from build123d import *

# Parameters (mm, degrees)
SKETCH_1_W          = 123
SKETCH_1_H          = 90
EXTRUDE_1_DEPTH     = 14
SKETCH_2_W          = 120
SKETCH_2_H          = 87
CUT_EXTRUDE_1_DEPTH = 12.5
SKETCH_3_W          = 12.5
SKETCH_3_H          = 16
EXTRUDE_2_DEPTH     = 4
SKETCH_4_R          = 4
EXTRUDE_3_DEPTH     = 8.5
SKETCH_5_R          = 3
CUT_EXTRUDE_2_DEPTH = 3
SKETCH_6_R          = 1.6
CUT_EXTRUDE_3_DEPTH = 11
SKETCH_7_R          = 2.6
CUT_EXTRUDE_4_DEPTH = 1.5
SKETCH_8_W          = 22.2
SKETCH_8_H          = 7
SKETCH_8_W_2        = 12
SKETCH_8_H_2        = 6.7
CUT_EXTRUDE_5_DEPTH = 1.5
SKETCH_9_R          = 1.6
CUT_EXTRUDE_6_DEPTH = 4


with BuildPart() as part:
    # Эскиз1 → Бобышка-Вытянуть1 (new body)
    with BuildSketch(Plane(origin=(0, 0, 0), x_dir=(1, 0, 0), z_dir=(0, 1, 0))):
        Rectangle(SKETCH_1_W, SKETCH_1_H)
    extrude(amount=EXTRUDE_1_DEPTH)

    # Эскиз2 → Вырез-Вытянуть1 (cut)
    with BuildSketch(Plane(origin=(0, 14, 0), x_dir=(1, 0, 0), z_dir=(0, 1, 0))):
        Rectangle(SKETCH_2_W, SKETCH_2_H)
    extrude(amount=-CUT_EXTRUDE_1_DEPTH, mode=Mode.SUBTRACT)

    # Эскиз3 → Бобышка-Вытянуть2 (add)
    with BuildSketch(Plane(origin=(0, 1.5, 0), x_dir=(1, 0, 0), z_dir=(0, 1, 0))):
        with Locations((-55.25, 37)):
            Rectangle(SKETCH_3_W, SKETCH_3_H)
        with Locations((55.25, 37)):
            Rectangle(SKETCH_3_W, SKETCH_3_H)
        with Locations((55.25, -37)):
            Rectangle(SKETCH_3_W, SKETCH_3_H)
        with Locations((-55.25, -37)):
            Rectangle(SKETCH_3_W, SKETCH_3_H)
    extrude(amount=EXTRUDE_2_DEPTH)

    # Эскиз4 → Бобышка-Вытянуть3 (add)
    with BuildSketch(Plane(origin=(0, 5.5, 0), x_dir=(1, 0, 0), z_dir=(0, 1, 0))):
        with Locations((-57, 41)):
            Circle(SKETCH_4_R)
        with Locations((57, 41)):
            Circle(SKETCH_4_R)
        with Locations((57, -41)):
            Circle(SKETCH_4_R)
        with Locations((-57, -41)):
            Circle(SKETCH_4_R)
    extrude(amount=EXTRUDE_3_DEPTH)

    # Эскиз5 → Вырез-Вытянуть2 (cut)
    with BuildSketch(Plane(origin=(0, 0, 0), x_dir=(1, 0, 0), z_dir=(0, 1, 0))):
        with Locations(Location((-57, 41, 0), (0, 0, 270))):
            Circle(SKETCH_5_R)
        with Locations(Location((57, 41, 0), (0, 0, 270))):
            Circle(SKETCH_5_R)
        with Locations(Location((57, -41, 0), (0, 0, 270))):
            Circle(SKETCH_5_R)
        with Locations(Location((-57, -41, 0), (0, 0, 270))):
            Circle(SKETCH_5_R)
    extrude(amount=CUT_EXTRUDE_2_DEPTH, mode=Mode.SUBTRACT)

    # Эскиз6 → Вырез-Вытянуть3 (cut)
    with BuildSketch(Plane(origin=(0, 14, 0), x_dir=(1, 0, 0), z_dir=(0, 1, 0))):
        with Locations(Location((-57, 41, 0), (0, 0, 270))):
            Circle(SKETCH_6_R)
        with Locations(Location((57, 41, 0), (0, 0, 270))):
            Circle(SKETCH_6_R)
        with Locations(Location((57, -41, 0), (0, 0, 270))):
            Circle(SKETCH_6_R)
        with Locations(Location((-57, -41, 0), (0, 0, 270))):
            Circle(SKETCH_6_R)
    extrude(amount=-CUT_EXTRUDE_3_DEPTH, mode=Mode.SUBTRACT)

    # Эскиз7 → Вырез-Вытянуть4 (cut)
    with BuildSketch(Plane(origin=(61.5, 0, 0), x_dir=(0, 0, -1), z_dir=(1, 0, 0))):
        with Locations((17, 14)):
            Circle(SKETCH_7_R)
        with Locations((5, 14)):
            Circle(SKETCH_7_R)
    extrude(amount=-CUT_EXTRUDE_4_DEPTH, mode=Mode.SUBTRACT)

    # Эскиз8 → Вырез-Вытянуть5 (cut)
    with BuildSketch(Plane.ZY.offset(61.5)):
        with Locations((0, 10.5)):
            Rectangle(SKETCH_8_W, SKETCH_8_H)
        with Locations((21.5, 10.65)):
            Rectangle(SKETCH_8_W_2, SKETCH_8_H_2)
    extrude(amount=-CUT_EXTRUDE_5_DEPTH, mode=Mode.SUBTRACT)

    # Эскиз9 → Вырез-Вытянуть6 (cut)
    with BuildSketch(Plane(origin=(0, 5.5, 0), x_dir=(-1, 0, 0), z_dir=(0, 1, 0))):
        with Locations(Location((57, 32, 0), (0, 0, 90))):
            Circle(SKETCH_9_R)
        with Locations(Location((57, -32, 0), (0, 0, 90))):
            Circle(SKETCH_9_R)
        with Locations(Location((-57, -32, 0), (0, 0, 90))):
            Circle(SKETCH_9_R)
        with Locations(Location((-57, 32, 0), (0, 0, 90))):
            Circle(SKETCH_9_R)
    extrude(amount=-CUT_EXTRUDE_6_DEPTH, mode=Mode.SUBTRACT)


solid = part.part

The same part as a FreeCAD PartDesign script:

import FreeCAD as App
import Part
import Sketcher


def add_polygon(sketch, points):
    """Adds a closed chain of lines whose ends are joined by coincident constraints."""
    first, n = sketch.GeometryCount, len(points)
    for a, b in zip(points, points[1:] + points[:1]):
        sketch.addGeometry(Part.LineSegment(App.Vector(*a, 0), App.Vector(*b, 0)), False)
    for i in range(n):
        sketch.addConstraint(Sketcher.Constraint("Coincident", first + i, 2, first + (i + 1) % n, 1))

doc = App.newDocument("Part")
params = doc.addObject("Spreadsheet::Sheet", "Params")
for row, (alias, value) in enumerate([
    ("sketch1_width", "123 mm"),
    ("sketch1_height", "90 mm"),
    ("pad1_length", "14 mm"),
    ("sketch2_width", "120 mm"),
    ("sketch2_height", "87 mm"),
    ("pocket1_length", "12.5 mm"),
    ("sketch3_height", "16 mm"),
    ("sketch3_width", "12.5 mm"),
    ("pad2_length", "4 mm"),
    ("sketch4_diameter", "8 mm"),
    ("pad3_length", "8.5 mm"),
    ("sketch5_diameter", "6 mm"),
    ("pocket2_length", "3 mm"),
    ("sketch6_diameter", "3.2 mm"),
    ("pocket3_length", "11 mm"),
    ("sketch7_diameter", "5.2 mm"),
    ("pocket4_length", "1.5 mm"),
    ("sketch8_width", "7 mm"),
    ("sketch8_height", "12 mm"),
    ("sketch8_width2", "6.7 mm"),
    ("sketch8_height2", "22.2 mm"),
    ("pocket5_length", "1.5 mm"),
    ("sketch9_diameter", "3.2 mm"),
    ("pocket6_length", "4 mm"),
], start=1):
    params.set(f"A{row}", alias)
    params.set(f"B{row}", "=" + value)
    params.setAlias(f"B{row}", alias)

body = doc.addObject("PartDesign::Body", "Body")

# Sketch on XZ plane
sketch1 = body.newObject("Sketcher::SketchObject", "Sketch")
sketch1.AttachmentSupport = (doc.getObject("XZ_Plane"), [""])
sketch1.MapMode = "FlatFace"
add_polygon(sketch1, [(-62, -45), (-62, 45), (62, 45), (62, -45)])  # lines 0-3
sketch1.addConstraint([
    Sketcher.Constraint("Vertical", 0),
    Sketcher.Constraint("Horizontal", 1),
    Sketcher.Constraint("Vertical", 2),
    Sketcher.Constraint("Horizontal", 3),
    Sketcher.Constraint("Symmetric", 0, 2, 2, 2, -1, 1),
    Sketcher.Constraint("DistanceX", 1, 1, 1, 2, 123.0),
    Sketcher.Constraint("DistanceY", 0, 1, 0, 2, 90.0),
])
sketch1.setExpression("Constraints[9]", "Params.sketch1_width")
sketch1.setExpression("Constraints[10]", "Params.sketch1_height")
pad1 = body.newObject("PartDesign::Pad", "Pad")
pad1.Profile = sketch1
pad1.setExpression("Length", "Params.pad1_length")
pad1.Reversed = True

# Sketch on XZ plane
sketch2 = body.newObject("Sketcher::SketchObject", "Sketch001")
sketch2.AttachmentSupport = (doc.getObject("XZ_Plane"), [""])
sketch2.MapMode = "FlatFace"
sketch2.AttachmentOffset = App.Placement(App.Vector(0, 0, -14), App.Rotation())
add_polygon(sketch2, [(-60, -44), (-60, 44), (60, 44), (60, -44)])  # lines 0-3
sketch2.addConstraint([
    Sketcher.Constraint("Vertical", 0),
    Sketcher.Constraint("Horizontal", 1),
    Sketcher.Constraint("Vertical", 2),
    Sketcher.Constraint("Horizontal", 3),
    Sketcher.Constraint("Symmetric", 0, 2, 2, 2, -1, 1),
    Sketcher.Constraint("DistanceX", 1, 1, 1, 2, 120.0),
    Sketcher.Constraint("DistanceY", 0, 1, 0, 2, 87.0),
])
sketch2.setExpression("Constraints[9]", "Params.sketch2_width")
sketch2.setExpression("Constraints[10]", "Params.sketch2_height")
pocket1 = body.newObject("PartDesign::Pocket", "Pocket")
pocket1.Profile = sketch2
pocket1.setExpression("Length", "Params.pocket1_length")
pocket1.Reversed = True

# Sketch on XZ plane
sketch3 = body.newObject("Sketcher::SketchObject", "Sketch002")
sketch3.AttachmentSupport = (doc.getObject("XZ_Plane"), [""])
sketch3.MapMode = "FlatFace"
sketch3.AttachmentOffset = App.Placement(App.Vector(0, 0, -1.5), App.Rotation())
add_polygon(sketch3, [(-62, -45), (-62, -29), (-49, -29), (-49, -45)])  # lines 0-3
add_polygon(sketch3, [(49, -45), (49, -29), (62, -29), (62, -45)])  # lines 4-7
add_polygon(sketch3, [(49, 29), (49, 45), (62, 45), (62, 29)])  # lines 8-11
add_polygon(sketch3, [(-62, 29), (-62, 45), (-49, 45), (-49, 29)])  # lines 12-15
sketch3.addConstraint([
    Sketcher.Constraint("Vertical", 0),
    Sketcher.Constraint("Horizontal", 1),
    Sketcher.Constraint("Vertical", 2),
    Sketcher.Constraint("Horizontal", 3),
    Sketcher.Constraint("Vertical", 4),
    Sketcher.Constraint("Horizontal", 5),
    Sketcher.Constraint("Vertical", 6),
    Sketcher.Constraint("Horizontal", 7),
    Sketcher.Constraint("Vertical", 8),
    Sketcher.Constraint("Horizontal", 9),
    Sketcher.Constraint("Vertical", 10),
    Sketcher.Constraint("Horizontal", 11),
    Sketcher.Constraint("Vertical", 12),
    Sketcher.Constraint("Horizontal", 13),
    Sketcher.Constraint("Vertical", 14),
    Sketcher.Constraint("Horizontal", 15),
    Sketcher.Constraint("Symmetric", 2, 2, 8, 2, -1, 1),
    Sketcher.Constraint("Symmetric", 0, 2, 10, 2, -1, 1),
    Sketcher.Constraint("Symmetric", 6, 2, 12, 2, -1, 1),
    Sketcher.Constraint("Symmetric", 4, 2, 14, 2, -1, 1),
    Sketcher.Constraint("Symmetric", 1, 2, 4, 2, -2),
    Sketcher.Constraint("Symmetric", 3, 2, 6, 2, -2),
    Sketcher.Constraint("DistanceY", 0, 1, 0, 2, 16.0),
    Sketcher.Constraint("DistanceX", 1, 1, 1, 2, 12.5),
    Sketcher.Constraint("DistanceY", 0, 2, -1, 1, 29.0),
    Sketcher.Constraint("DistanceX", 1, 2, -1, 1, 49.0),
])
sketch3.setExpression("Constraints[38]", "Params.sketch3_height")
sketch3.setExpression("Constraints[39]", "Params.sketch3_width")
pad2 = body.newObject("PartDesign::Pad", "Pad001")
pad2.Profile = sketch3
pad2.setExpression("Length", "Params.pad2_length")
pad2.Reversed = True

# Sketch on XZ plane
sketch4 = body.newObject("Sketcher::SketchObject", "Sketch003")
sketch4.AttachmentSupport = (doc.getObject("XZ_Plane"), [""])
sketch4.MapMode = "FlatFace"
sketch4.AttachmentOffset = App.Placement(App.Vector(0, 0, -5.5), App.Rotation())
sketch4.addGeometry([
    Part.Circle(App.Vector(-57, -41, 0), App.Vector(0, 0, 1), 4),
    Part.Circle(App.Vector(57, -41, 0), App.Vector(0, 0, 1), 4),
    Part.Circle(App.Vector(57, 41, 0), App.Vector(0, 0, 1), 4),
    Part.Circle(App.Vector(-57, 41, 0), App.Vector(0, 0, 1), 4),
], False)
sketch4.addConstraint([
    Sketcher.Constraint("Equal", 0, 1),
    Sketcher.Constraint("Equal", 1, 2),
    Sketcher.Constraint("Equal", 2, 3),
    Sketcher.Constraint("Symmetric", 0, 3, 2, 3, -1, 1),
    Sketcher.Constraint("Symmetric", 1, 3, 3, 3, -1, 1),
    Sketcher.Constraint("Symmetric", 0, 3, 1, 3, -2),
    Sketcher.Constraint("Diameter", 0, 8.0),
    Sketcher.Constraint("DistanceX", 0, 3, -1, 1, 57.0),
    Sketcher.Constraint("DistanceY", 0, 3, -1, 1, 41.0),
])
sketch4.setExpression("Constraints[6]", "Params.sketch4_diameter")
pad3 = body.newObject("PartDesign::Pad", "Pad002")
pad3.Profile = sketch4
pad3.setExpression("Length", "Params.pad3_length")
pad3.Reversed = True

# Sketch on XZ plane
sketch5 = body.newObject("Sketcher::SketchObject", "Sketch004")
sketch5.AttachmentSupport = (doc.getObject("XZ_Plane"), [""])
sketch5.MapMode = "FlatFace"
sketch5.addGeometry([
    Part.Circle(App.Vector(-57, -41, 0), App.Vector(0, 0, 1), 3),
    Part.Circle(App.Vector(57, -41, 0), App.Vector(0, 0, 1), 3),
    Part.Circle(App.Vector(57, 41, 0), App.Vector(0, 0, 1), 3),
    Part.Circle(App.Vector(-57, 41, 0), App.Vector(0, 0, 1), 3),
], False)
sketch5.addConstraint([
    Sketcher.Constraint("Equal", 0, 1),
    Sketcher.Constraint("Equal", 1, 2),
    Sketcher.Constraint("Equal", 2, 3),
    Sketcher.Constraint("Symmetric", 0, 3, 2, 3, -1, 1),
    Sketcher.Constraint("Symmetric", 1, 3, 3, 3, -1, 1),
    Sketcher.Constraint("Symmetric", 0, 3, 1, 3, -2),
    Sketcher.Constraint("Diameter", 0, 6.0),
    Sketcher.Constraint("DistanceX", 0, 3, -1, 1, 57.0),
    Sketcher.Constraint("DistanceY", 0, 3, -1, 1, 41.0),
])
sketch5.setExpression("Constraints[6]", "Params.sketch5_diameter")
pocket2 = body.newObject("PartDesign::Pocket", "Pocket001")
pocket2.Profile = sketch5
pocket2.setExpression("Length", "Params.pocket2_length")

# Sketch on XZ plane
sketch6 = body.newObject("Sketcher::SketchObject", "Sketch005")
sketch6.AttachmentSupport = (doc.getObject("XZ_Plane"), [""])
sketch6.MapMode = "FlatFace"
sketch6.AttachmentOffset = App.Placement(App.Vector(0, 0, -14), App.Rotation())
sketch6.addGeometry([
    Part.Circle(App.Vector(-57, -41, 0), App.Vector(0, 0, 1), 1.6),
    Part.Circle(App.Vector(57, -41, 0), App.Vector(0, 0, 1), 1.6),
    Part.Circle(App.Vector(57, 41, 0), App.Vector(0, 0, 1), 1.6),
    Part.Circle(App.Vector(-57, 41, 0), App.Vector(0, 0, 1), 1.6),
], False)
sketch6.addConstraint([
    Sketcher.Constraint("Equal", 0, 1),
    Sketcher.Constraint("Equal", 1, 2),
    Sketcher.Constraint("Equal", 2, 3),
    Sketcher.Constraint("Symmetric", 0, 3, 2, 3, -1, 1),
    Sketcher.Constraint("Symmetric", 1, 3, 3, 3, -1, 1),
    Sketcher.Constraint("Symmetric", 0, 3, 1, 3, -2),
    Sketcher.Constraint("Diameter", 0, 3.2),
    Sketcher.Constraint("DistanceX", 0, 3, -1, 1, 57.0),
    Sketcher.Constraint("DistanceY", 0, 3, -1, 1, 41.0),
])
sketch6.setExpression("Constraints[6]", "Params.sketch6_diameter")
pocket3 = body.newObject("PartDesign::Pocket", "Pocket002")
pocket3.Profile = sketch6
pocket3.setExpression("Length", "Params.pocket3_length")
pocket3.Reversed = True

# Sketch on YZ plane
sketch7 = body.newObject("Sketcher::SketchObject", "Sketch006")
sketch7.AttachmentSupport = (doc.getObject("YZ_Plane"), [""])
sketch7.MapMode = "FlatFace"
sketch7.AttachmentOffset = App.Placement(App.Vector(0, 0, 61.5), App.Rotation())
sketch7.addGeometry([
    Part.Circle(App.Vector(14, -17, 0), App.Vector(0, 0, 1), 2.6),
    Part.Circle(App.Vector(14, -5, 0), App.Vector(0, 0, 1), 2.6),
], False)
sketch7.addConstraint([
    Sketcher.Constraint("Equal", 0, 1),
    Sketcher.Constraint("Vertical", 0, 3, 1, 3),
    Sketcher.Constraint("Diameter", 0, 5.2),
    Sketcher.Constraint("DistanceX", -1, 1, 0, 3, 14.0),
    Sketcher.Constraint("DistanceY", 0, 3, -1, 1, 17.0),
    Sketcher.Constraint("DistanceY", 1, 3, -1, 1, 5.0),
])
sketch7.setExpression("Constraints[2]", "Params.sketch7_diameter")
pocket4 = body.newObject("PartDesign::Pocket", "Pocket003")
pocket4.Profile = sketch7
pocket4.setExpression("Length", "Params.pocket4_length")

# Sketch on YZ plane
sketch8 = body.newObject("Sketcher::SketchObject", "Sketch007")
sketch8.AttachmentSupport = (doc.getObject("YZ_Plane"), [""])
sketch8.MapMode = "FlatFace"
sketch8.AttachmentOffset = App.Placement(App.Vector(0, 0, -61.5), App.Rotation())
add_polygon(sketch8, [(14, -11), (7, -11), (7, 11), (14, 11)])  # lines 0-3
add_polygon(sketch8, [(14, 16), (7, 16), (7, 28), (14, 28)])  # lines 4-7
sketch8.addConstraint([
    Sketcher.Constraint("Horizontal", 0),
    Sketcher.Constraint("Vertical", 1),
    Sketcher.Constraint("Horizontal", 2),
    Sketcher.Constraint("Vertical", 3),
    Sketcher.Constraint("Horizontal", 4),
    Sketcher.Constraint("Vertical", 5),
    Sketcher.Constraint("Horizontal", 6),
    Sketcher.Constraint("Vertical", 7),
    Sketcher.Constraint("Vertical", 3, 2, 6, 2),
    Sketcher.Constraint("DistanceX", 0, 2, 0, 1, 7.0),
    Sketcher.Constraint("DistanceY", 5, 1, 5, 2, 12.0),
    Sketcher.Constraint("DistanceX", 4, 2, 4, 1, 6.7),
    Sketcher.Constraint("DistanceY", 1, 1, 1, 2, 22.2),
    Sketcher.Constraint("DistanceX", -1, 1, 0, 2, 7.0),
    Sketcher.Constraint("DistanceY", 0, 2, -1, 1, 11.1),
    Sketcher.Constraint("DistanceY", -1, 1, 4, 2, 15.5),
])
sketch8.setExpression("Constraints[17]", "Params.sketch8_width")
sketch8.setExpression("Constraints[18]", "Params.sketch8_height")
sketch8.setExpression("Constraints[19]", "Params.sketch8_width2")
sketch8.setExpression("Constraints[20]", "Params.sketch8_height2")
pocket5 = body.newObject("PartDesign::Pocket", "Pocket004")
pocket5.Profile = sketch8
pocket5.setExpression("Length", "Params.pocket5_length")
pocket5.Reversed = True

# Sketch on XZ plane
sketch9 = body.newObject("Sketcher::SketchObject", "Sketch008")
sketch9.AttachmentSupport = (doc.getObject("XZ_Plane"), [""])
sketch9.MapMode = "FlatFace"
sketch9.AttachmentOffset = App.Placement(App.Vector(0, 0, -5.5), App.Rotation())
sketch9.addGeometry([
    Part.Circle(App.Vector(-57, 32, 0), App.Vector(0, 0, 1), 1.6),
    Part.Circle(App.Vector(-57, -32, 0), App.Vector(0, 0, 1), 1.6),
    Part.Circle(App.Vector(57, -32, 0), App.Vector(0, 0, 1), 1.6),
    Part.Circle(App.Vector(57, 32, 0), App.Vector(0, 0, 1), 1.6),
], False)
sketch9.addConstraint([
    Sketcher.Constraint("Equal", 0, 1),
    Sketcher.Constraint("Equal", 1, 2),
    Sketcher.Constraint("Equal", 2, 3),
    Sketcher.Constraint("Symmetric", 0, 3, 2, 3, -1, 1),
    Sketcher.Constraint("Symmetric", 1, 3, 3, 3, -1, 1),
    Sketcher.Constraint("Symmetric", 1, 3, 2, 3, -2),
    Sketcher.Constraint("Diameter", 0, 3.2),
    Sketcher.Constraint("DistanceX", 0, 3, -1, 1, 57.0),
    Sketcher.Constraint("DistanceY", -1, 1, 0, 3, 32.0),
])
sketch9.setExpression("Constraints[6]", "Params.sketch9_diameter")
pocket6 = body.newObject("PartDesign::Pocket", "Pocket005")
pocket6.Profile = sketch9
pocket6.setExpression("Length", "Params.pocket6_length")
pocket6.Reversed = True

doc.recompute()
